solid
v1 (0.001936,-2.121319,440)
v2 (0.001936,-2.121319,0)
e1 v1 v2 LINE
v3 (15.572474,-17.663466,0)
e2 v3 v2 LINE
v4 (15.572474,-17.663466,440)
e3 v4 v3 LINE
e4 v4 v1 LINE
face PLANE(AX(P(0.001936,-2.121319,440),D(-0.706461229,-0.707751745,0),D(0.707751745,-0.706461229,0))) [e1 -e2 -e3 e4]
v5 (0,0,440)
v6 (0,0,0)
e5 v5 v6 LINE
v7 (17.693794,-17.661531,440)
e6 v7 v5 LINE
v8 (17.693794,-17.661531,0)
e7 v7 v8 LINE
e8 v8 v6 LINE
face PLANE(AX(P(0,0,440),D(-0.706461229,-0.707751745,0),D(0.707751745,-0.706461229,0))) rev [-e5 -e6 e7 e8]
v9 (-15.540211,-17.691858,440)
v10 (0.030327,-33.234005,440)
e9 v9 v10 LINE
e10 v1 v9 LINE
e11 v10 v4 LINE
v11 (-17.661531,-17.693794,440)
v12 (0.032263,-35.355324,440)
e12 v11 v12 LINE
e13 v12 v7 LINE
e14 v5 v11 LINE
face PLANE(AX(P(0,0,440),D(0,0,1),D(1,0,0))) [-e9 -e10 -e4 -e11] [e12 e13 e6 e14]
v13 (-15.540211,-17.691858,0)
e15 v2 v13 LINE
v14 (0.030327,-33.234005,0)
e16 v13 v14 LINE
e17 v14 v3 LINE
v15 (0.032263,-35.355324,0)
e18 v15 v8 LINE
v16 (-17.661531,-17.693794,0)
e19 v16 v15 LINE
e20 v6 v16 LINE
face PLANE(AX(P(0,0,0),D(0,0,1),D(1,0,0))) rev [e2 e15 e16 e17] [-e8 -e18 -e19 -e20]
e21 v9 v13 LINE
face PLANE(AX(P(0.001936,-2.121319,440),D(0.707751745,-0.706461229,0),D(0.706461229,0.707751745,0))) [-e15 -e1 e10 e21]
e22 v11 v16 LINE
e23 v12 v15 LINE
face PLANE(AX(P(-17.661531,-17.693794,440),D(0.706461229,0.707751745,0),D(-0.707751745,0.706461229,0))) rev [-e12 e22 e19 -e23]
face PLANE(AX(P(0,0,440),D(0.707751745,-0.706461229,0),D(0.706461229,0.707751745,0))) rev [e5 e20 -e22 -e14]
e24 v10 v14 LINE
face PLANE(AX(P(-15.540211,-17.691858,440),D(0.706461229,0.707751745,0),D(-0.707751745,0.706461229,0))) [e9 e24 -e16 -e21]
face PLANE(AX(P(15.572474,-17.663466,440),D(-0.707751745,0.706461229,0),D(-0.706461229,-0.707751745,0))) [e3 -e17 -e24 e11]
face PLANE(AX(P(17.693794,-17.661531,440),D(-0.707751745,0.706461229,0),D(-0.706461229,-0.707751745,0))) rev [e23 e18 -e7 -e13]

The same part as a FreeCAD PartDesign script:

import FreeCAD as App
import Part
import Sketcher
from FreeCAD import Vector


def add_polygon(sketch, points):
    """Adds a closed chain of lines whose ends are joined by coincident constraints."""
    first, n = sketch.GeometryCount, len(points)
    for a, b in zip(points, points[1:] + points[:1]):
        sketch.addGeometry(Part.LineSegment(App.Vector(*a, 0), App.Vector(*b, 0)), False)
    for i in range(n):
        sketch.addConstraint(Sketcher.Constraint("Coincident", first + i, 2, first + (i + 1) % n, 1))

doc = App.newDocument("Part")
params = doc.addObject("Spreadsheet::Sheet", "Params")
for row, (alias, value) in enumerate([
    ("sketch1_length", "25 mm"),
    ("sketch1_length2", "22 mm"),
    ("pad1_length", "440 mm"),
], start=1):
    params.set(f"A{row}", alias)
    params.set(f"B{row}", "=" + value)
    params.setAlias(f"B{row}", alias)

body = doc.addObject("PartDesign::Body", "Body")

sketch1 = doc.addObject("Sketcher::SketchObject", "Sketch")
body.addObject(sketch1)
sketch1.AttachmentSupport = (doc.XY_Plane, [""])
sketch1.MapMode = "FlatFace"
add_polygon(sketch1, [(18, -18), (0, 0), (-18, -18), (0, -35)])
add_polygon(sketch1, [(0, -2), (16, -18), (0, -33), (-16, -18)])
sketch1.addConstraint(Sketcher.Constraint("Coincident", 0, 2, -1, 1))
sketch1.addConstraint(Sketcher.Constraint("Perpendicular", 0, 1))
sketch1.addConstraint(Sketcher.Constraint("Perpendicular", 1, 2))
sketch1.addConstraint(Sketcher.Constraint("Perpendicular", 2, 3))
sketch1.addConstraint(Sketcher.Constraint("Perpendicular", 3, 4))
sketch1.addConstraint(Sketcher.Constraint("Perpendicular", 4, 5))
sketch1.addConstraint(Sketcher.Constraint("Perpendicular", 5, 6))
sketch1.addConstraint(Sketcher.Constraint("Perpendicular", 6, 7))
sketch1.addConstraint(Sketcher.Constraint("Equal", 0, 1))
sketch1.addConstraint(Sketcher.Constraint("Equal", 4, 5))
sketch1.addConstraint(Sketcher.Constraint("Distance", 0, 25.0))
sketch1.addConstraint(Sketcher.Constraint("Distance", 4, 22.0))
sketch1.addConstraint(Sketcher.Constraint("DistanceX", 1, 2, -1, 1, 17.661531))
sketch1.addConstraint(Sketcher.Constraint("DistanceX", 6, 2, -1, 1, 15.540211))
sketch1.addConstraint(Sketcher.Constraint("DistanceY", 7, 2, -1, 1, 2.121319))
sketch1.setExpression("Constraints[18]", "Params.sketch1_length")
sketch1.setExpression("Constraints[19]", "Params.sketch1_length2")
pad1 = doc.addObject("PartDesign::Pad", "Pad")
body.addObject(pad1)
pad1.Profile = sketch1
pad1.setExpression("Length", "Params.pad1_length")

doc.recompute()
